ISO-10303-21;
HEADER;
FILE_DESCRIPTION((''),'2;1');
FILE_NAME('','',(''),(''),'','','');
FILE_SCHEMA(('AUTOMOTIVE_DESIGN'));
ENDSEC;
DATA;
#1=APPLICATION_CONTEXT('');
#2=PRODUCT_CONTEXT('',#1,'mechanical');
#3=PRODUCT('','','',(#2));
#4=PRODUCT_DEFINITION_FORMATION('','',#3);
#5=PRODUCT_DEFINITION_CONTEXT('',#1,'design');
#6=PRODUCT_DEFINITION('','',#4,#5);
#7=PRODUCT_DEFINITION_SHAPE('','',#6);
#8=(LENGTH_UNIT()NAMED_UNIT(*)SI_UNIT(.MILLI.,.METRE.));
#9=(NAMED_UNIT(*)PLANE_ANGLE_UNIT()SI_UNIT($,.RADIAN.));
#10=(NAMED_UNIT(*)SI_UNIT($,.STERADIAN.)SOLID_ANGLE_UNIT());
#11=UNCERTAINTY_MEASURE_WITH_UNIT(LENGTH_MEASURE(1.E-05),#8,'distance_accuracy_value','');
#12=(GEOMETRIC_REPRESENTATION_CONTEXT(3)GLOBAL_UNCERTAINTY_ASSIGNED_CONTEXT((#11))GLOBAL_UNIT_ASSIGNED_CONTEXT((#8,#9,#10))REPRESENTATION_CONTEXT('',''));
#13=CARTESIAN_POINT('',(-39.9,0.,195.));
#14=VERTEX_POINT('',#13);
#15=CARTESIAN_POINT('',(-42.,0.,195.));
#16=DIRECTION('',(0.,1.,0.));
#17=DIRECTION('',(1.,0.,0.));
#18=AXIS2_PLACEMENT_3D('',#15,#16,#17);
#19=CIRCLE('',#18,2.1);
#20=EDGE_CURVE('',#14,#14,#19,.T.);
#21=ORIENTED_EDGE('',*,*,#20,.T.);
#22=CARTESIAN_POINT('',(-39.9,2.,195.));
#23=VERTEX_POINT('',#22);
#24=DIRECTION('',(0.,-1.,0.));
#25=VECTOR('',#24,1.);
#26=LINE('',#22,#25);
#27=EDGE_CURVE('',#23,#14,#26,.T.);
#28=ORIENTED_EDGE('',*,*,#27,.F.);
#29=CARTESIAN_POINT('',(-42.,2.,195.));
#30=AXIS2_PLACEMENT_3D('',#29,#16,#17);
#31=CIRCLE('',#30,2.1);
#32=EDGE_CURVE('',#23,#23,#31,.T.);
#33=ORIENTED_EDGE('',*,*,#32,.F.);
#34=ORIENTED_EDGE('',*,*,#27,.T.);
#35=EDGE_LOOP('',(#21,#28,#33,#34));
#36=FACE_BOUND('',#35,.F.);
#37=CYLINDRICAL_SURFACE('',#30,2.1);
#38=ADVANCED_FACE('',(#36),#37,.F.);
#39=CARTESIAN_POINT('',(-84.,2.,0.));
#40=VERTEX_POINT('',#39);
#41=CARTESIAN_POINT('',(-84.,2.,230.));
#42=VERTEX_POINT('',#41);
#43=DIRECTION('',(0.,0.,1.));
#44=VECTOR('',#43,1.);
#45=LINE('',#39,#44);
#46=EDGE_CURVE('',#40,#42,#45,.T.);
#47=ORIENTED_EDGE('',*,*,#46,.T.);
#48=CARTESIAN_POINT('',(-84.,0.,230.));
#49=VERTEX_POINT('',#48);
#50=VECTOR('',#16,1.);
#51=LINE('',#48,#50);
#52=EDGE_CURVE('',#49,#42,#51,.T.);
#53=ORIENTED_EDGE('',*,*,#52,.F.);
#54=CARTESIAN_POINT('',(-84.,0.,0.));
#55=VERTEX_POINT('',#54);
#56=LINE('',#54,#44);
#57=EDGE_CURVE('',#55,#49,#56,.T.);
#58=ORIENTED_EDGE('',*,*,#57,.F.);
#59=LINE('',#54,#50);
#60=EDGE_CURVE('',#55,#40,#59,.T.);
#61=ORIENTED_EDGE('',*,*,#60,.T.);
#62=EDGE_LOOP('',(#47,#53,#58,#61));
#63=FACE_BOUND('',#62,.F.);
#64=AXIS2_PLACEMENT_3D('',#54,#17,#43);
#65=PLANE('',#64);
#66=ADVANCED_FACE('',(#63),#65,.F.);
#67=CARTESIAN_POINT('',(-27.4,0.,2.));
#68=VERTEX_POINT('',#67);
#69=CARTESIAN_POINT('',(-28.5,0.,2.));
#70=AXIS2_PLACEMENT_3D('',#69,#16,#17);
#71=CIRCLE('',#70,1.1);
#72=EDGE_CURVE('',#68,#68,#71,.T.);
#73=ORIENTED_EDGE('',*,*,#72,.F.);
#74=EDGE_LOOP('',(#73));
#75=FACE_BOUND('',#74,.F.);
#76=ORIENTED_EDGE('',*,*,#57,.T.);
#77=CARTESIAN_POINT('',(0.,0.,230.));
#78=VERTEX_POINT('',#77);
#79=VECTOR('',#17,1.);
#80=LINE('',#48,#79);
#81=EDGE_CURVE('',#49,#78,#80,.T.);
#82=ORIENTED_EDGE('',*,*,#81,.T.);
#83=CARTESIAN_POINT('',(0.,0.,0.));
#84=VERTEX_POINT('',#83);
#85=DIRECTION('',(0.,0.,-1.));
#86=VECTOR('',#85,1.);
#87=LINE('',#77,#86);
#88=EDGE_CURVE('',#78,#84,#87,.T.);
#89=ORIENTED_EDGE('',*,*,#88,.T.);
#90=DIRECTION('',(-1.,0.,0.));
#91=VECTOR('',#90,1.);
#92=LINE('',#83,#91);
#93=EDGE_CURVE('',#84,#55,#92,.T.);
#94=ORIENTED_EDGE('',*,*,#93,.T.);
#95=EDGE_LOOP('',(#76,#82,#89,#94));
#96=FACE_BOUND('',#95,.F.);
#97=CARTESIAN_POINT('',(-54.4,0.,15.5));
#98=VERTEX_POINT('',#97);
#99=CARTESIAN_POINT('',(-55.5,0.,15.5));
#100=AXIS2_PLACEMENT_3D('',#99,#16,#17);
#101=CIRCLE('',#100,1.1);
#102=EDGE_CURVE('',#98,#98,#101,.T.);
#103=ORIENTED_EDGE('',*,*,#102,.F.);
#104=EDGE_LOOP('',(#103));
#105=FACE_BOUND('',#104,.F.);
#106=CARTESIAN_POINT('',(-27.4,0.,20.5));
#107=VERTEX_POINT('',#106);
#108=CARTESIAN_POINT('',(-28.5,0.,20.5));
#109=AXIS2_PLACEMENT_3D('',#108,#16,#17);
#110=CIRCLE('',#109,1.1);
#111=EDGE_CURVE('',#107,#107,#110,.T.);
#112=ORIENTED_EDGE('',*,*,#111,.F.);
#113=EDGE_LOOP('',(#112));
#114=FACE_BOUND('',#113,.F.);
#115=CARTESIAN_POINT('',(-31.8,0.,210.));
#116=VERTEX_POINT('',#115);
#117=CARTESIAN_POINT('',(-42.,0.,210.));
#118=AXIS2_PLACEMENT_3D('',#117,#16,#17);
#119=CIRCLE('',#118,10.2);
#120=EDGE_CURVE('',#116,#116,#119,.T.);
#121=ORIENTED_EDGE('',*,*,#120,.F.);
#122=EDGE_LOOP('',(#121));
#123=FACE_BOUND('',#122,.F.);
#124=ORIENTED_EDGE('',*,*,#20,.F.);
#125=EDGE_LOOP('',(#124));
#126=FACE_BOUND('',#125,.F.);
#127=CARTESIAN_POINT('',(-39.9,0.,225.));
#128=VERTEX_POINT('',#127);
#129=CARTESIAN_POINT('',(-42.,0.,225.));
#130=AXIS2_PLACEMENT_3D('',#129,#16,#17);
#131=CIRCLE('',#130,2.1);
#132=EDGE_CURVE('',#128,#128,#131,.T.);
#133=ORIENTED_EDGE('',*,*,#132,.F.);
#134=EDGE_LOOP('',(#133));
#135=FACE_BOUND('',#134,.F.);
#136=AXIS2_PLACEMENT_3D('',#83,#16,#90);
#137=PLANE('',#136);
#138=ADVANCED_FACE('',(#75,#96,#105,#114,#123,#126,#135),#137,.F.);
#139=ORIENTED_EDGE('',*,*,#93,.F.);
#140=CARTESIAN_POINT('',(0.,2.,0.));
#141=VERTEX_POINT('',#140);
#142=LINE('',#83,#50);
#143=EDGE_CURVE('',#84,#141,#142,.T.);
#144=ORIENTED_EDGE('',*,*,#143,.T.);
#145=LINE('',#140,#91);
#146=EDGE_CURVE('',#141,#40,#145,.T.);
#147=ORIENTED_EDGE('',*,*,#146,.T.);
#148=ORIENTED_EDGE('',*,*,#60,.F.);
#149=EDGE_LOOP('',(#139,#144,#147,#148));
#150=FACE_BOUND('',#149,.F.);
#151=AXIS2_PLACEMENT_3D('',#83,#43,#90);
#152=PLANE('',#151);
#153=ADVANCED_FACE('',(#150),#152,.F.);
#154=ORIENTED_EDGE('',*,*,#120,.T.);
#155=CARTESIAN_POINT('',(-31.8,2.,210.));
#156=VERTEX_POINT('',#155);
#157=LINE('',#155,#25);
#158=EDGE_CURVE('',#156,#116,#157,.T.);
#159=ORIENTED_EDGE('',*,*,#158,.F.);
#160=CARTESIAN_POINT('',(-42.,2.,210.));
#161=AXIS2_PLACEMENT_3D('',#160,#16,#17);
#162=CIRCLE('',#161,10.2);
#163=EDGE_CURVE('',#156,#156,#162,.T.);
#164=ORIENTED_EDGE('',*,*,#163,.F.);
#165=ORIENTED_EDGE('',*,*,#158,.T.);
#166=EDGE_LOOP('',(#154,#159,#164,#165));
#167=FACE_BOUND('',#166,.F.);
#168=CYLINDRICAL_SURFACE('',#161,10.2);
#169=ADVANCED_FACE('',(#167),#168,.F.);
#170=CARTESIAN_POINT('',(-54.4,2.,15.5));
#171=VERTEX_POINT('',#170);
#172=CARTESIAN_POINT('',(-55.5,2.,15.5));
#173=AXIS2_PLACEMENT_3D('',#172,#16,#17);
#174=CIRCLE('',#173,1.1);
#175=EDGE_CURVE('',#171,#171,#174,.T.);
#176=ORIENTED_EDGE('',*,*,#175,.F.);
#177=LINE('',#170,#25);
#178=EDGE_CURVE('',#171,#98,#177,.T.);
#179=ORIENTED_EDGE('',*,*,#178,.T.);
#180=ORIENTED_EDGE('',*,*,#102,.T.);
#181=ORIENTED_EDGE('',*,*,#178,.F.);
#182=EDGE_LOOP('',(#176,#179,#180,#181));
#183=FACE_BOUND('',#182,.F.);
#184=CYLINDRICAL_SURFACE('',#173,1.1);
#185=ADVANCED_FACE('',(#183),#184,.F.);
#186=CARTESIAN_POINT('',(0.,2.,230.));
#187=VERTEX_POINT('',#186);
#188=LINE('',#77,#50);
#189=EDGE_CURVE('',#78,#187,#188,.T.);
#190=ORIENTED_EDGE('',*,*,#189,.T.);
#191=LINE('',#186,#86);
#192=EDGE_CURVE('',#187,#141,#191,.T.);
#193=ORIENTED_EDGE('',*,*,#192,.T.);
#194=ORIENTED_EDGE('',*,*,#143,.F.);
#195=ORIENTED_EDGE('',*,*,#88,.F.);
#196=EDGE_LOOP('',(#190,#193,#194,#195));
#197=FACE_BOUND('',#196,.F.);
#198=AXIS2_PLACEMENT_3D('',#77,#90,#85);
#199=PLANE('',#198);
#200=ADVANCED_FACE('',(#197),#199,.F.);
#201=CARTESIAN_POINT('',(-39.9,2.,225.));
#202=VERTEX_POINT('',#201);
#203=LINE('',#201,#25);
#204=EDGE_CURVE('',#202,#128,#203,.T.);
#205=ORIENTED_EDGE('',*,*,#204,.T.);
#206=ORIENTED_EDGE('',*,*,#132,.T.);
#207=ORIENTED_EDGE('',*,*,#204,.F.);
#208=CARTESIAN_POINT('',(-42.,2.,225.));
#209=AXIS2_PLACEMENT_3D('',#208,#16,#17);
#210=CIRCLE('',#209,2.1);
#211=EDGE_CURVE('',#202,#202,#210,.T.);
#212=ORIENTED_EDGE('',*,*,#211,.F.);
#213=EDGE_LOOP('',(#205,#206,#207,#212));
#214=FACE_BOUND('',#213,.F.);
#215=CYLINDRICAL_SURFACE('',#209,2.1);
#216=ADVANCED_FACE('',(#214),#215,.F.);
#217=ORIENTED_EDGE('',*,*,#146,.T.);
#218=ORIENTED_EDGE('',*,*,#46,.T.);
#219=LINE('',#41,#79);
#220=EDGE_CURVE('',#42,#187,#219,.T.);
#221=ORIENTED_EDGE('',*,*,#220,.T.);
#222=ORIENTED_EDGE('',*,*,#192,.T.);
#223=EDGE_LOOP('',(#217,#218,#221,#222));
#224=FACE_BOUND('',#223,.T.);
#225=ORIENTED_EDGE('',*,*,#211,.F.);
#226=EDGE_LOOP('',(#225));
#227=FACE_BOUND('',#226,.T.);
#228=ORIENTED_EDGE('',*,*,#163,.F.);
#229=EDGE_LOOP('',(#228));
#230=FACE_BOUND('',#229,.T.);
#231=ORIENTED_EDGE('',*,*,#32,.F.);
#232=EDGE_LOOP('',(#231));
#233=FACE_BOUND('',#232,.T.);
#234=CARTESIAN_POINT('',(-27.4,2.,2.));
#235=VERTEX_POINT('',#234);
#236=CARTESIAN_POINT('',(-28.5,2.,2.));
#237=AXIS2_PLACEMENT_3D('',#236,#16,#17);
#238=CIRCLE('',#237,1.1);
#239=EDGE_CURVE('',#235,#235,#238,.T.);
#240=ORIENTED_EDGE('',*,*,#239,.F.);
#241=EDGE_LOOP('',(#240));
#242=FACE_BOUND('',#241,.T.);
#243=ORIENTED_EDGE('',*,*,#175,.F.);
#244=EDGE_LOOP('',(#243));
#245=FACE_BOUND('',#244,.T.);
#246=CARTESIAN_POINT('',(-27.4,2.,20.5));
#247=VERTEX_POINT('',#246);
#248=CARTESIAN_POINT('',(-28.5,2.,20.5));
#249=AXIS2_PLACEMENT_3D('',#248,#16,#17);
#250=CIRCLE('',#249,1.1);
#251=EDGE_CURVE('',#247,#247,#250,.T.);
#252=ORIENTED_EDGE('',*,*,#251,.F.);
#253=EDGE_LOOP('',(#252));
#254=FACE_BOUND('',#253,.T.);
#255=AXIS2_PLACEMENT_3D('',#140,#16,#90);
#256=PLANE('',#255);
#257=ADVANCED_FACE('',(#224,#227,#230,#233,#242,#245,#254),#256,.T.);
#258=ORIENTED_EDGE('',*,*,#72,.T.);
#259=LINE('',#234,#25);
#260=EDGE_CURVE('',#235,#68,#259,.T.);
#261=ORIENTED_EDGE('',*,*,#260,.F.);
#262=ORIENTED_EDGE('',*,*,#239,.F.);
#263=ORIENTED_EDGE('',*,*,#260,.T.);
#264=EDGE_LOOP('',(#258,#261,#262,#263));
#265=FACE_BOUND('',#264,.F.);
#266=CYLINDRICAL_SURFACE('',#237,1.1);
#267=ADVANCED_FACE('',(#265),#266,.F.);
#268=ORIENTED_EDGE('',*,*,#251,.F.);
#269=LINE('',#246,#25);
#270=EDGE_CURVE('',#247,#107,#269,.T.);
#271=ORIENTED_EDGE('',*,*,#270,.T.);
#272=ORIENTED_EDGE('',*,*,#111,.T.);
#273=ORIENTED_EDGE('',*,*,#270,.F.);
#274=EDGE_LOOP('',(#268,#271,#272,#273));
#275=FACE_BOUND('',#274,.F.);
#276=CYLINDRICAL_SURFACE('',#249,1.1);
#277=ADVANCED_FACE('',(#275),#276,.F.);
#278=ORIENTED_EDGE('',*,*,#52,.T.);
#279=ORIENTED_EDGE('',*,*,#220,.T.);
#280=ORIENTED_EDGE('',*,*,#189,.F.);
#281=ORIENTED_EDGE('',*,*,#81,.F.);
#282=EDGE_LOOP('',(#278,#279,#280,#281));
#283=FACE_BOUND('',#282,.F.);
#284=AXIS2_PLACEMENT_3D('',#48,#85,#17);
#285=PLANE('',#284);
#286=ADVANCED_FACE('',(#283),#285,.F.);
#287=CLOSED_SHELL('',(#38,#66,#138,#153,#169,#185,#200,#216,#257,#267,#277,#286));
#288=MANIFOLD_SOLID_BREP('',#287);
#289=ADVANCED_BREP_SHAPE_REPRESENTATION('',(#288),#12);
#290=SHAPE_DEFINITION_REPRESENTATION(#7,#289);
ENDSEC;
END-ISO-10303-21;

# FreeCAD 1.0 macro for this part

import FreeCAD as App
import Part
import Sketcher
from FreeCAD import Vector

doc = App.newDocument("Part")
body = doc.addObject("PartDesign::Body", "Body")

# Sketch on XZ plane
sketch1 = body.newObject("Sketcher::SketchObject", "Sketch")
sketch1.AttachmentSupport = (doc.getObject("XZ_Plane"), [""])
sketch1.MapMode = "FlatFace"
sketch1.addGeometry(Part.LineSegment(Vector(0, 230, 0), Vector(0, 0, 0)), False)
sketch1.addGeometry(Part.LineSegment(Vector(0, 0, 0), Vector(-84, 0, 0)), False)
sketch1.addGeometry(Part.LineSegment(Vector(-84, 0, 0), Vector(-84, 230, 0)), False)
sketch1.addGeometry(Part.LineSegment(Vector(-84, 230, 0), Vector(0, 230, 0)), False)
sketch1.addConstraint(Sketcher.Constraint("Coincident", 0, 2, 1, 1))
sketch1.addConstraint(Sketcher.Constraint("Coincident", 1, 2, 2, 1))
sketch1.addConstraint(Sketcher.Constraint("Coincident", 2, 2, 3, 1))
sketch1.addConstraint(Sketcher.Constraint("Coincident", 3, 2, 0, 1))
sketch1.addConstraint(Sketcher.Constraint("Vertical", 0))
sketch1.addConstraint(Sketcher.Constraint("Horizontal", 1))
sketch1.addConstraint(Sketcher.Constraint("Vertical", 2))
sketch1.addConstraint(Sketcher.Constraint("Horizontal", 3))
sketch1.addConstraint(Sketcher.Constraint("Coincident", 0, 2, -1, 1))
sketch1.addConstraint(Sketcher.Constraint("DistanceX", 1, 2, 1, 1, 84.0))
sketch1.addConstraint(Sketcher.Constraint("DistanceY", 0, 2, 0, 1, 230.0))
pad1 = body.newObject("PartDesign::Pad", "Pad")
pad1.Profile = sketch1
pad1.Length = 2
pad1.Reversed = True

# Sketch on XZ plane
sketch2 = body.newObject("Sketcher::SketchObject", "Sketch001")
sketch2.AttachmentSupport = (doc.getObject("XZ_Plane"), [""])
sketch2.MapMode = "FlatFace"
sketch2.AttachmentOffset = App.Placement(Vector(0, 0, -2), App.Rotation())
sketch2.addGeometry(Part.Circle(Vector(-42, 225, 0), Vector(0, 0, 1), 2.1), False)
sketch2.addGeometry(Part.Circle(Vector(-42, 195, 0), Vector(0, 0, 1), 2.1), False)
sketch2.addGeometry(Part.Circle(Vector(-28.5, 2, 0), Vector(0, 0, 1), 1.1), False)
sketch2.addGeometry(Part.Circle(Vector(-28.5, 20.5, 0), Vector(0, 0, 1), 1.1), False)
sketch2.addGeometry(Part.Circle(Vector(-55.5, 15.5, 0), Vector(0, 0, 1), 1.1), False)
sketch2.addGeometry(Part.Circle(Vector(-42, 210, 0), Vector(0, 0, 1), 10.2), False)
sketch2.addConstraint(Sketcher.Constraint("Equal", 0, 1))
sketch2.addConstraint(Sketcher.Constraint("Equal", 2, 3))
sketch2.addConstraint(Sketcher.Constraint("Equal", 3, 4))
sketch2.addConstraint(Sketcher.Constraint("Vertical", 0, 3, 1, 3))
sketch2.addConstraint(Sketcher.Constraint("Vertical", 2, 3, 3, 3))
sketch2.addConstraint(Sketcher.Constraint("Vertical", 1, 3, 5, 3))
sketch2.addConstraint(Sketcher.Constraint("Diameter", 0, 4.2))
sketch2.addConstraint(Sketcher.Constraint("Diameter", 2, 2.2))
sketch2.addConstraint(Sketcher.Constraint("Diameter", 5, 20.4))
sketch2.addConstraint(Sketcher.Constraint("DistanceX", 0, 3, -1, 1, 42.0))
sketch2.addConstraint(Sketcher.Constraint("DistanceY", 1, 3, 0, 3, 30.0))
sketch2.addConstraint(Sketcher.Constraint("DistanceY", 4, 3, 3, 3, 5.0))
sketch2.addConstraint(Sketcher.Constraint("DistanceY", 5, 3, 0, 3, 15.0))
sketch2.addConstraint(Sketcher.Constraint("DistanceX", 2, 3, -1, 1, 28.5))
sketch2.addConstraint(Sketcher.Constraint("DistanceX", 4, 3, -1, 1, 55.5))
sketch2.addConstraint(Sketcher.Constraint("DistanceY", 4, 3, 0, 3, 209.5))
sketch2.addConstraint(Sketcher.Constraint("DistanceY", -1, 1, 0, 3, 225.0))
sketch2.addConstraint(Sketcher.Constraint("DistanceY", -1, 1, 2, 3, 2.0))
pocket1 = body.newObject("PartDesign::Pocket", "Pocket")
pocket1.Profile = sketch2
pocket1.Length = 2
pocket1.Reversed = True

doc.recompute()
